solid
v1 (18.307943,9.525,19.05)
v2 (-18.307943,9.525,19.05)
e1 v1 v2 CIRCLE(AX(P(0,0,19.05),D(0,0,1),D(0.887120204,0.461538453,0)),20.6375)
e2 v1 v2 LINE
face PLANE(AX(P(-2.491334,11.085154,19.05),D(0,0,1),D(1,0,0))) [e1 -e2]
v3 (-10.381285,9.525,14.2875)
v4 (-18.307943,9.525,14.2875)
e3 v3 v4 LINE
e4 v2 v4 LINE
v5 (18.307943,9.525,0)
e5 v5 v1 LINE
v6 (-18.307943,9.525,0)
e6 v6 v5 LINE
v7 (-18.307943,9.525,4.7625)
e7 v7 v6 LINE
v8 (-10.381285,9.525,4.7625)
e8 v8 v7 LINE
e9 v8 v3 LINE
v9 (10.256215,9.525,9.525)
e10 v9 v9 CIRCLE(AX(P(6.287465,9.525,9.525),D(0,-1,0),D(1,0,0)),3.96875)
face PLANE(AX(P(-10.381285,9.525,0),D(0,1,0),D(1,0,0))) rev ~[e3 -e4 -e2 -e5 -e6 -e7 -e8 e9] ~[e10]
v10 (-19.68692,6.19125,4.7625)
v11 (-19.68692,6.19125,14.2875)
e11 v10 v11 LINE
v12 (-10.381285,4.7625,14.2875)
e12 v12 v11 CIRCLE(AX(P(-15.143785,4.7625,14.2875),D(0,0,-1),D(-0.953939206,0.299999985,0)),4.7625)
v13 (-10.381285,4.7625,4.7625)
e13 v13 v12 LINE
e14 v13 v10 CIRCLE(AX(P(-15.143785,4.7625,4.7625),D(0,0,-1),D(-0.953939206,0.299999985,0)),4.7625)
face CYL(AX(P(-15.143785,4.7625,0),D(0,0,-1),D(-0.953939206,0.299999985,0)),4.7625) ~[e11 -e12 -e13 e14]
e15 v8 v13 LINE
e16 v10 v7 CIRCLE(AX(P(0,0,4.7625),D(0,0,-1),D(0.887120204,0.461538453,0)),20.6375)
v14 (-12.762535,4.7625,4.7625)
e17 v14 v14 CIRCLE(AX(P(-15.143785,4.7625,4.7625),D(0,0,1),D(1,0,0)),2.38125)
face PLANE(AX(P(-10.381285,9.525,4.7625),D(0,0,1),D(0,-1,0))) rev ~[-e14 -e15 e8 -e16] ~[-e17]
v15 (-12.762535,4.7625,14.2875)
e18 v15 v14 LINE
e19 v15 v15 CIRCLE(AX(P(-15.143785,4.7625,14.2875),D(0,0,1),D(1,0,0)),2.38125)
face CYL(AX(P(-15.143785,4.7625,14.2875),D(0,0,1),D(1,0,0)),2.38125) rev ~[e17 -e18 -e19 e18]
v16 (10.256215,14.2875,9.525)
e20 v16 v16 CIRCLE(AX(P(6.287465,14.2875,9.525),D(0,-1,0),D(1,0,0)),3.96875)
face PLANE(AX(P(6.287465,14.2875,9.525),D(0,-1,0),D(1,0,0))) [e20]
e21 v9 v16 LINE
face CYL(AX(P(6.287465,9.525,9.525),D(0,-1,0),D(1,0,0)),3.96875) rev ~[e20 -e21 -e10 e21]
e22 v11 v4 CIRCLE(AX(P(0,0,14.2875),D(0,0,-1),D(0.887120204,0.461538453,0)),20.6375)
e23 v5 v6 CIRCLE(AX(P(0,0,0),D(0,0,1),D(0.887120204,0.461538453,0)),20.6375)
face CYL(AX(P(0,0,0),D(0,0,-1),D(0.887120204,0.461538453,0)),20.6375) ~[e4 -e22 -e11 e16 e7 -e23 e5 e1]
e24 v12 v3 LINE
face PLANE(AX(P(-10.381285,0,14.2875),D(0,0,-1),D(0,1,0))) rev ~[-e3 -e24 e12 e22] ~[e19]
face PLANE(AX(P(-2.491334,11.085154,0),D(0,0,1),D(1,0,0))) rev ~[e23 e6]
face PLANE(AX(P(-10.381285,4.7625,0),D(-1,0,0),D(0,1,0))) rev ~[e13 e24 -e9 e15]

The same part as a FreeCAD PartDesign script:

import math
import FreeCAD as App
import Part
import Sketcher

V = App.Vector
Q = App.Units.Quantity


def add_polygon(sketch, points):
    """Adds a closed chain of lines whose ends are joined by coincident constraints."""
    first, n = sketch.GeometryCount, len(points)
    for a, b in zip(points, points[1:] + points[:1]):
        sketch.addGeometry(Part.LineSegment(App.Vector(*a, 0), App.Vector(*b, 0)), False)
    for i in range(n):
        sketch.addConstraint(Sketcher.Constraint("Coincident", first + i, 2, first + (i + 1) % n, 1))

doc = App.newDocument("Part")
body = doc.addObject("PartDesign::Body", "Body")

# Sketch on XY plane
sketch1 = body.newObject("Sketcher::SketchObject", "Sketch")
sketch1.AttachmentSupport = (doc.getObject("XY_Plane"), [""])
sketch1.MapMode = "FlatFace"
sketch1.addGeometry(Part.LineSegment(V(-10.4, 9.5, 0), V(18.3, 9.5, 0)), False)
sketch1.addGeometry(Part.ArcOfCircle(Part.Circle(V(0, 0, 0), V(0, 0, 1), 20.6), math.radians(27), math.radians(163)), False)
sketch1.addGeometry(Part.ArcOfCircle(Part.Circle(V(-15.1, 4.8, 0), V(0, 0, 1), 4.8), math.radians(163), math.radians(360)), False)
sketch1.addGeometry(Part.LineSegment(V(-10.4, 4.8, 0), V(-10.4, 9.5, 0)), False)
sketch1.addConstraint(Sketcher.Constraint("Coincident", 0, 2, 1, 1))
sketch1.addConstraint(Sketcher.Constraint("Tangent", 1, 2, 2, 1))
sketch1.addConstraint(Sketcher.Constraint("Tangent", 2, 2, 3, 1))
sketch1.addConstraint(Sketcher.Constraint("Coincident", 3, 2, 0, 1))
sketch1.addConstraint(Sketcher.Constraint("Horizontal", 0))
sketch1.addConstraint(Sketcher.Constraint("Vertical", 3))
sketch1.addConstraint(Sketcher.Constraint("Coincident", 1, 3, -1, 1))
sketch1.addConstraint(Sketcher.Constraint("Radius", 1, Q("0.8125 in")))
sketch1.addConstraint(Sketcher.Constraint("Radius", 2, Q("0.1875 in")))
sketch1.addConstraint(Sketcher.Constraint("DistanceY", 3, 1, 3, 2, Q("0.1875 in")))
sketch1.addConstraint(Sketcher.Constraint("DistanceY", -1, 1, 2, 3, Q("0.1875 in")))
pad1 = body.newObject("PartDesign::Pad", "Pad")
pad1.Profile = sketch1
pad1.Length = Q("0.75 in")

# Sketch on YZ plane
sketch2 = body.newObject("Sketcher::SketchObject", "Sketch001")
sketch2.AttachmentSupport = (doc.getObject("YZ_Plane"), [""])
sketch2.MapMode = "FlatFace"
sketch2.AttachmentOffset = App.Placement(V(0, 0, -10.381285), App.Rotation())
add_polygon(sketch2, [(9.5, 14.3), (9.5, 19.1), (0, 19.1), (0, 14.3)])  # lines 0-3
add_polygon(sketch2, [(9.5, 0), (9.5, 4.8), (0, 4.8), (0, 0)])  # lines 4-7
sketch2.addConstraint(Sketcher.Constraint("Vertical", 0))
sketch2.addConstraint(Sketcher.Constraint("Horizontal", 1))
sketch2.addConstraint(Sketcher.Constraint("Vertical", 2))
sketch2.addConstraint(Sketcher.Constraint("Horizontal", 3))
sketch2.addConstraint(Sketcher.Constraint("Vertical", 4))
sketch2.addConstraint(Sketcher.Constraint("Horizontal", 5))
sketch2.addConstraint(Sketcher.Constraint("Vertical", 6))
sketch2.addConstraint(Sketcher.Constraint("Horizontal", 7))
sketch2.addConstraint(Sketcher.Constraint("Coincident", 6, 2, -1, 1))
sketch2.addConstraint(Sketcher.Constraint("PointOnObject", 1, 2, -2))
sketch2.addConstraint(Sketcher.Constraint("Vertical", 3, 2, 4, 2))
sketch2.addConstraint(Sketcher.Constraint("Equal", 2, 4))
sketch2.addConstraint(Sketcher.Constraint("DistanceX", 1, 2, 1, 1, Q("0.375 in")))
sketch2.addConstraint(Sketcher.Constraint("DistanceY", 0, 1, 0, 2, Q("0.1875 in")))
sketch2.addConstraint(Sketcher.Constraint("DistanceY", -1, 1, 0, 2, Q("0.75 in")))
pocket1 = body.newObject("PartDesign::Pocket", "Pocket")
pocket1.Profile = sketch2
pocket1.Length = Q("1 in")

# Sketch on XY plane
sketch3 = body.newObject("Sketcher::SketchObject", "Sketch002")
sketch3.AttachmentSupport = (doc.getObject("XY_Plane"), [""])
sketch3.MapMode = "FlatFace"
sketch3.AttachmentOffset = App.Placement(V(0, 0, 0.5625 * 25.4), App.Rotation())
sketch3.addGeometry(Part.Circle(V(-15.1, 4.8, 0), V(0, 0, 1), 2.4), False)
sketch3.addConstraint(Sketcher.Constraint("Diameter", 0, Q("0.1875 in")))
sketch3.addConstraint(Sketcher.Constraint("DistanceY", -1, 1, 0, 3, Q("0.1875 in")))
sketch3.addConstraint(Sketcher.Constraint("DistanceX", 0, 3, -1, 1, 15.143785))
pocket2 = body.newObject("PartDesign::Pocket", "Pocket001")
pocket2.Profile = sketch3
pocket2.Type = "ThroughAll"

# Sketch on XZ plane
sketch4 = body.newObject("Sketcher::SketchObject", "Sketch003")
sketch4.AttachmentSupport = (doc.getObject("XZ_Plane"), [""])
sketch4.MapMode = "FlatFace"
sketch4.AttachmentOffset = App.Placement(V(0, 0, -0.375 * 25.4), App.Rotation())
sketch4.addGeometry(Part.Circle(V(6.3, 9.5, 0), V(0, 0, 1), 4), False)
sketch4.addConstraint(Sketcher.Constraint("Diameter", 0, Q("0.3125 in")))
sketch4.addConstraint(Sketcher.Constraint("DistanceY", -1, 1, 0, 3, Q("0.375 in")))
sketch4.addConstraint(Sketcher.Constraint("DistanceX", -1, 1, 0, 3, 6.287465))
pocket3 = body.newObject("PartDesign::Pocket", "Pocket002")
pocket3.Profile = sketch4
pocket3.Length = Q("0.1875 in")

doc.recompute()
